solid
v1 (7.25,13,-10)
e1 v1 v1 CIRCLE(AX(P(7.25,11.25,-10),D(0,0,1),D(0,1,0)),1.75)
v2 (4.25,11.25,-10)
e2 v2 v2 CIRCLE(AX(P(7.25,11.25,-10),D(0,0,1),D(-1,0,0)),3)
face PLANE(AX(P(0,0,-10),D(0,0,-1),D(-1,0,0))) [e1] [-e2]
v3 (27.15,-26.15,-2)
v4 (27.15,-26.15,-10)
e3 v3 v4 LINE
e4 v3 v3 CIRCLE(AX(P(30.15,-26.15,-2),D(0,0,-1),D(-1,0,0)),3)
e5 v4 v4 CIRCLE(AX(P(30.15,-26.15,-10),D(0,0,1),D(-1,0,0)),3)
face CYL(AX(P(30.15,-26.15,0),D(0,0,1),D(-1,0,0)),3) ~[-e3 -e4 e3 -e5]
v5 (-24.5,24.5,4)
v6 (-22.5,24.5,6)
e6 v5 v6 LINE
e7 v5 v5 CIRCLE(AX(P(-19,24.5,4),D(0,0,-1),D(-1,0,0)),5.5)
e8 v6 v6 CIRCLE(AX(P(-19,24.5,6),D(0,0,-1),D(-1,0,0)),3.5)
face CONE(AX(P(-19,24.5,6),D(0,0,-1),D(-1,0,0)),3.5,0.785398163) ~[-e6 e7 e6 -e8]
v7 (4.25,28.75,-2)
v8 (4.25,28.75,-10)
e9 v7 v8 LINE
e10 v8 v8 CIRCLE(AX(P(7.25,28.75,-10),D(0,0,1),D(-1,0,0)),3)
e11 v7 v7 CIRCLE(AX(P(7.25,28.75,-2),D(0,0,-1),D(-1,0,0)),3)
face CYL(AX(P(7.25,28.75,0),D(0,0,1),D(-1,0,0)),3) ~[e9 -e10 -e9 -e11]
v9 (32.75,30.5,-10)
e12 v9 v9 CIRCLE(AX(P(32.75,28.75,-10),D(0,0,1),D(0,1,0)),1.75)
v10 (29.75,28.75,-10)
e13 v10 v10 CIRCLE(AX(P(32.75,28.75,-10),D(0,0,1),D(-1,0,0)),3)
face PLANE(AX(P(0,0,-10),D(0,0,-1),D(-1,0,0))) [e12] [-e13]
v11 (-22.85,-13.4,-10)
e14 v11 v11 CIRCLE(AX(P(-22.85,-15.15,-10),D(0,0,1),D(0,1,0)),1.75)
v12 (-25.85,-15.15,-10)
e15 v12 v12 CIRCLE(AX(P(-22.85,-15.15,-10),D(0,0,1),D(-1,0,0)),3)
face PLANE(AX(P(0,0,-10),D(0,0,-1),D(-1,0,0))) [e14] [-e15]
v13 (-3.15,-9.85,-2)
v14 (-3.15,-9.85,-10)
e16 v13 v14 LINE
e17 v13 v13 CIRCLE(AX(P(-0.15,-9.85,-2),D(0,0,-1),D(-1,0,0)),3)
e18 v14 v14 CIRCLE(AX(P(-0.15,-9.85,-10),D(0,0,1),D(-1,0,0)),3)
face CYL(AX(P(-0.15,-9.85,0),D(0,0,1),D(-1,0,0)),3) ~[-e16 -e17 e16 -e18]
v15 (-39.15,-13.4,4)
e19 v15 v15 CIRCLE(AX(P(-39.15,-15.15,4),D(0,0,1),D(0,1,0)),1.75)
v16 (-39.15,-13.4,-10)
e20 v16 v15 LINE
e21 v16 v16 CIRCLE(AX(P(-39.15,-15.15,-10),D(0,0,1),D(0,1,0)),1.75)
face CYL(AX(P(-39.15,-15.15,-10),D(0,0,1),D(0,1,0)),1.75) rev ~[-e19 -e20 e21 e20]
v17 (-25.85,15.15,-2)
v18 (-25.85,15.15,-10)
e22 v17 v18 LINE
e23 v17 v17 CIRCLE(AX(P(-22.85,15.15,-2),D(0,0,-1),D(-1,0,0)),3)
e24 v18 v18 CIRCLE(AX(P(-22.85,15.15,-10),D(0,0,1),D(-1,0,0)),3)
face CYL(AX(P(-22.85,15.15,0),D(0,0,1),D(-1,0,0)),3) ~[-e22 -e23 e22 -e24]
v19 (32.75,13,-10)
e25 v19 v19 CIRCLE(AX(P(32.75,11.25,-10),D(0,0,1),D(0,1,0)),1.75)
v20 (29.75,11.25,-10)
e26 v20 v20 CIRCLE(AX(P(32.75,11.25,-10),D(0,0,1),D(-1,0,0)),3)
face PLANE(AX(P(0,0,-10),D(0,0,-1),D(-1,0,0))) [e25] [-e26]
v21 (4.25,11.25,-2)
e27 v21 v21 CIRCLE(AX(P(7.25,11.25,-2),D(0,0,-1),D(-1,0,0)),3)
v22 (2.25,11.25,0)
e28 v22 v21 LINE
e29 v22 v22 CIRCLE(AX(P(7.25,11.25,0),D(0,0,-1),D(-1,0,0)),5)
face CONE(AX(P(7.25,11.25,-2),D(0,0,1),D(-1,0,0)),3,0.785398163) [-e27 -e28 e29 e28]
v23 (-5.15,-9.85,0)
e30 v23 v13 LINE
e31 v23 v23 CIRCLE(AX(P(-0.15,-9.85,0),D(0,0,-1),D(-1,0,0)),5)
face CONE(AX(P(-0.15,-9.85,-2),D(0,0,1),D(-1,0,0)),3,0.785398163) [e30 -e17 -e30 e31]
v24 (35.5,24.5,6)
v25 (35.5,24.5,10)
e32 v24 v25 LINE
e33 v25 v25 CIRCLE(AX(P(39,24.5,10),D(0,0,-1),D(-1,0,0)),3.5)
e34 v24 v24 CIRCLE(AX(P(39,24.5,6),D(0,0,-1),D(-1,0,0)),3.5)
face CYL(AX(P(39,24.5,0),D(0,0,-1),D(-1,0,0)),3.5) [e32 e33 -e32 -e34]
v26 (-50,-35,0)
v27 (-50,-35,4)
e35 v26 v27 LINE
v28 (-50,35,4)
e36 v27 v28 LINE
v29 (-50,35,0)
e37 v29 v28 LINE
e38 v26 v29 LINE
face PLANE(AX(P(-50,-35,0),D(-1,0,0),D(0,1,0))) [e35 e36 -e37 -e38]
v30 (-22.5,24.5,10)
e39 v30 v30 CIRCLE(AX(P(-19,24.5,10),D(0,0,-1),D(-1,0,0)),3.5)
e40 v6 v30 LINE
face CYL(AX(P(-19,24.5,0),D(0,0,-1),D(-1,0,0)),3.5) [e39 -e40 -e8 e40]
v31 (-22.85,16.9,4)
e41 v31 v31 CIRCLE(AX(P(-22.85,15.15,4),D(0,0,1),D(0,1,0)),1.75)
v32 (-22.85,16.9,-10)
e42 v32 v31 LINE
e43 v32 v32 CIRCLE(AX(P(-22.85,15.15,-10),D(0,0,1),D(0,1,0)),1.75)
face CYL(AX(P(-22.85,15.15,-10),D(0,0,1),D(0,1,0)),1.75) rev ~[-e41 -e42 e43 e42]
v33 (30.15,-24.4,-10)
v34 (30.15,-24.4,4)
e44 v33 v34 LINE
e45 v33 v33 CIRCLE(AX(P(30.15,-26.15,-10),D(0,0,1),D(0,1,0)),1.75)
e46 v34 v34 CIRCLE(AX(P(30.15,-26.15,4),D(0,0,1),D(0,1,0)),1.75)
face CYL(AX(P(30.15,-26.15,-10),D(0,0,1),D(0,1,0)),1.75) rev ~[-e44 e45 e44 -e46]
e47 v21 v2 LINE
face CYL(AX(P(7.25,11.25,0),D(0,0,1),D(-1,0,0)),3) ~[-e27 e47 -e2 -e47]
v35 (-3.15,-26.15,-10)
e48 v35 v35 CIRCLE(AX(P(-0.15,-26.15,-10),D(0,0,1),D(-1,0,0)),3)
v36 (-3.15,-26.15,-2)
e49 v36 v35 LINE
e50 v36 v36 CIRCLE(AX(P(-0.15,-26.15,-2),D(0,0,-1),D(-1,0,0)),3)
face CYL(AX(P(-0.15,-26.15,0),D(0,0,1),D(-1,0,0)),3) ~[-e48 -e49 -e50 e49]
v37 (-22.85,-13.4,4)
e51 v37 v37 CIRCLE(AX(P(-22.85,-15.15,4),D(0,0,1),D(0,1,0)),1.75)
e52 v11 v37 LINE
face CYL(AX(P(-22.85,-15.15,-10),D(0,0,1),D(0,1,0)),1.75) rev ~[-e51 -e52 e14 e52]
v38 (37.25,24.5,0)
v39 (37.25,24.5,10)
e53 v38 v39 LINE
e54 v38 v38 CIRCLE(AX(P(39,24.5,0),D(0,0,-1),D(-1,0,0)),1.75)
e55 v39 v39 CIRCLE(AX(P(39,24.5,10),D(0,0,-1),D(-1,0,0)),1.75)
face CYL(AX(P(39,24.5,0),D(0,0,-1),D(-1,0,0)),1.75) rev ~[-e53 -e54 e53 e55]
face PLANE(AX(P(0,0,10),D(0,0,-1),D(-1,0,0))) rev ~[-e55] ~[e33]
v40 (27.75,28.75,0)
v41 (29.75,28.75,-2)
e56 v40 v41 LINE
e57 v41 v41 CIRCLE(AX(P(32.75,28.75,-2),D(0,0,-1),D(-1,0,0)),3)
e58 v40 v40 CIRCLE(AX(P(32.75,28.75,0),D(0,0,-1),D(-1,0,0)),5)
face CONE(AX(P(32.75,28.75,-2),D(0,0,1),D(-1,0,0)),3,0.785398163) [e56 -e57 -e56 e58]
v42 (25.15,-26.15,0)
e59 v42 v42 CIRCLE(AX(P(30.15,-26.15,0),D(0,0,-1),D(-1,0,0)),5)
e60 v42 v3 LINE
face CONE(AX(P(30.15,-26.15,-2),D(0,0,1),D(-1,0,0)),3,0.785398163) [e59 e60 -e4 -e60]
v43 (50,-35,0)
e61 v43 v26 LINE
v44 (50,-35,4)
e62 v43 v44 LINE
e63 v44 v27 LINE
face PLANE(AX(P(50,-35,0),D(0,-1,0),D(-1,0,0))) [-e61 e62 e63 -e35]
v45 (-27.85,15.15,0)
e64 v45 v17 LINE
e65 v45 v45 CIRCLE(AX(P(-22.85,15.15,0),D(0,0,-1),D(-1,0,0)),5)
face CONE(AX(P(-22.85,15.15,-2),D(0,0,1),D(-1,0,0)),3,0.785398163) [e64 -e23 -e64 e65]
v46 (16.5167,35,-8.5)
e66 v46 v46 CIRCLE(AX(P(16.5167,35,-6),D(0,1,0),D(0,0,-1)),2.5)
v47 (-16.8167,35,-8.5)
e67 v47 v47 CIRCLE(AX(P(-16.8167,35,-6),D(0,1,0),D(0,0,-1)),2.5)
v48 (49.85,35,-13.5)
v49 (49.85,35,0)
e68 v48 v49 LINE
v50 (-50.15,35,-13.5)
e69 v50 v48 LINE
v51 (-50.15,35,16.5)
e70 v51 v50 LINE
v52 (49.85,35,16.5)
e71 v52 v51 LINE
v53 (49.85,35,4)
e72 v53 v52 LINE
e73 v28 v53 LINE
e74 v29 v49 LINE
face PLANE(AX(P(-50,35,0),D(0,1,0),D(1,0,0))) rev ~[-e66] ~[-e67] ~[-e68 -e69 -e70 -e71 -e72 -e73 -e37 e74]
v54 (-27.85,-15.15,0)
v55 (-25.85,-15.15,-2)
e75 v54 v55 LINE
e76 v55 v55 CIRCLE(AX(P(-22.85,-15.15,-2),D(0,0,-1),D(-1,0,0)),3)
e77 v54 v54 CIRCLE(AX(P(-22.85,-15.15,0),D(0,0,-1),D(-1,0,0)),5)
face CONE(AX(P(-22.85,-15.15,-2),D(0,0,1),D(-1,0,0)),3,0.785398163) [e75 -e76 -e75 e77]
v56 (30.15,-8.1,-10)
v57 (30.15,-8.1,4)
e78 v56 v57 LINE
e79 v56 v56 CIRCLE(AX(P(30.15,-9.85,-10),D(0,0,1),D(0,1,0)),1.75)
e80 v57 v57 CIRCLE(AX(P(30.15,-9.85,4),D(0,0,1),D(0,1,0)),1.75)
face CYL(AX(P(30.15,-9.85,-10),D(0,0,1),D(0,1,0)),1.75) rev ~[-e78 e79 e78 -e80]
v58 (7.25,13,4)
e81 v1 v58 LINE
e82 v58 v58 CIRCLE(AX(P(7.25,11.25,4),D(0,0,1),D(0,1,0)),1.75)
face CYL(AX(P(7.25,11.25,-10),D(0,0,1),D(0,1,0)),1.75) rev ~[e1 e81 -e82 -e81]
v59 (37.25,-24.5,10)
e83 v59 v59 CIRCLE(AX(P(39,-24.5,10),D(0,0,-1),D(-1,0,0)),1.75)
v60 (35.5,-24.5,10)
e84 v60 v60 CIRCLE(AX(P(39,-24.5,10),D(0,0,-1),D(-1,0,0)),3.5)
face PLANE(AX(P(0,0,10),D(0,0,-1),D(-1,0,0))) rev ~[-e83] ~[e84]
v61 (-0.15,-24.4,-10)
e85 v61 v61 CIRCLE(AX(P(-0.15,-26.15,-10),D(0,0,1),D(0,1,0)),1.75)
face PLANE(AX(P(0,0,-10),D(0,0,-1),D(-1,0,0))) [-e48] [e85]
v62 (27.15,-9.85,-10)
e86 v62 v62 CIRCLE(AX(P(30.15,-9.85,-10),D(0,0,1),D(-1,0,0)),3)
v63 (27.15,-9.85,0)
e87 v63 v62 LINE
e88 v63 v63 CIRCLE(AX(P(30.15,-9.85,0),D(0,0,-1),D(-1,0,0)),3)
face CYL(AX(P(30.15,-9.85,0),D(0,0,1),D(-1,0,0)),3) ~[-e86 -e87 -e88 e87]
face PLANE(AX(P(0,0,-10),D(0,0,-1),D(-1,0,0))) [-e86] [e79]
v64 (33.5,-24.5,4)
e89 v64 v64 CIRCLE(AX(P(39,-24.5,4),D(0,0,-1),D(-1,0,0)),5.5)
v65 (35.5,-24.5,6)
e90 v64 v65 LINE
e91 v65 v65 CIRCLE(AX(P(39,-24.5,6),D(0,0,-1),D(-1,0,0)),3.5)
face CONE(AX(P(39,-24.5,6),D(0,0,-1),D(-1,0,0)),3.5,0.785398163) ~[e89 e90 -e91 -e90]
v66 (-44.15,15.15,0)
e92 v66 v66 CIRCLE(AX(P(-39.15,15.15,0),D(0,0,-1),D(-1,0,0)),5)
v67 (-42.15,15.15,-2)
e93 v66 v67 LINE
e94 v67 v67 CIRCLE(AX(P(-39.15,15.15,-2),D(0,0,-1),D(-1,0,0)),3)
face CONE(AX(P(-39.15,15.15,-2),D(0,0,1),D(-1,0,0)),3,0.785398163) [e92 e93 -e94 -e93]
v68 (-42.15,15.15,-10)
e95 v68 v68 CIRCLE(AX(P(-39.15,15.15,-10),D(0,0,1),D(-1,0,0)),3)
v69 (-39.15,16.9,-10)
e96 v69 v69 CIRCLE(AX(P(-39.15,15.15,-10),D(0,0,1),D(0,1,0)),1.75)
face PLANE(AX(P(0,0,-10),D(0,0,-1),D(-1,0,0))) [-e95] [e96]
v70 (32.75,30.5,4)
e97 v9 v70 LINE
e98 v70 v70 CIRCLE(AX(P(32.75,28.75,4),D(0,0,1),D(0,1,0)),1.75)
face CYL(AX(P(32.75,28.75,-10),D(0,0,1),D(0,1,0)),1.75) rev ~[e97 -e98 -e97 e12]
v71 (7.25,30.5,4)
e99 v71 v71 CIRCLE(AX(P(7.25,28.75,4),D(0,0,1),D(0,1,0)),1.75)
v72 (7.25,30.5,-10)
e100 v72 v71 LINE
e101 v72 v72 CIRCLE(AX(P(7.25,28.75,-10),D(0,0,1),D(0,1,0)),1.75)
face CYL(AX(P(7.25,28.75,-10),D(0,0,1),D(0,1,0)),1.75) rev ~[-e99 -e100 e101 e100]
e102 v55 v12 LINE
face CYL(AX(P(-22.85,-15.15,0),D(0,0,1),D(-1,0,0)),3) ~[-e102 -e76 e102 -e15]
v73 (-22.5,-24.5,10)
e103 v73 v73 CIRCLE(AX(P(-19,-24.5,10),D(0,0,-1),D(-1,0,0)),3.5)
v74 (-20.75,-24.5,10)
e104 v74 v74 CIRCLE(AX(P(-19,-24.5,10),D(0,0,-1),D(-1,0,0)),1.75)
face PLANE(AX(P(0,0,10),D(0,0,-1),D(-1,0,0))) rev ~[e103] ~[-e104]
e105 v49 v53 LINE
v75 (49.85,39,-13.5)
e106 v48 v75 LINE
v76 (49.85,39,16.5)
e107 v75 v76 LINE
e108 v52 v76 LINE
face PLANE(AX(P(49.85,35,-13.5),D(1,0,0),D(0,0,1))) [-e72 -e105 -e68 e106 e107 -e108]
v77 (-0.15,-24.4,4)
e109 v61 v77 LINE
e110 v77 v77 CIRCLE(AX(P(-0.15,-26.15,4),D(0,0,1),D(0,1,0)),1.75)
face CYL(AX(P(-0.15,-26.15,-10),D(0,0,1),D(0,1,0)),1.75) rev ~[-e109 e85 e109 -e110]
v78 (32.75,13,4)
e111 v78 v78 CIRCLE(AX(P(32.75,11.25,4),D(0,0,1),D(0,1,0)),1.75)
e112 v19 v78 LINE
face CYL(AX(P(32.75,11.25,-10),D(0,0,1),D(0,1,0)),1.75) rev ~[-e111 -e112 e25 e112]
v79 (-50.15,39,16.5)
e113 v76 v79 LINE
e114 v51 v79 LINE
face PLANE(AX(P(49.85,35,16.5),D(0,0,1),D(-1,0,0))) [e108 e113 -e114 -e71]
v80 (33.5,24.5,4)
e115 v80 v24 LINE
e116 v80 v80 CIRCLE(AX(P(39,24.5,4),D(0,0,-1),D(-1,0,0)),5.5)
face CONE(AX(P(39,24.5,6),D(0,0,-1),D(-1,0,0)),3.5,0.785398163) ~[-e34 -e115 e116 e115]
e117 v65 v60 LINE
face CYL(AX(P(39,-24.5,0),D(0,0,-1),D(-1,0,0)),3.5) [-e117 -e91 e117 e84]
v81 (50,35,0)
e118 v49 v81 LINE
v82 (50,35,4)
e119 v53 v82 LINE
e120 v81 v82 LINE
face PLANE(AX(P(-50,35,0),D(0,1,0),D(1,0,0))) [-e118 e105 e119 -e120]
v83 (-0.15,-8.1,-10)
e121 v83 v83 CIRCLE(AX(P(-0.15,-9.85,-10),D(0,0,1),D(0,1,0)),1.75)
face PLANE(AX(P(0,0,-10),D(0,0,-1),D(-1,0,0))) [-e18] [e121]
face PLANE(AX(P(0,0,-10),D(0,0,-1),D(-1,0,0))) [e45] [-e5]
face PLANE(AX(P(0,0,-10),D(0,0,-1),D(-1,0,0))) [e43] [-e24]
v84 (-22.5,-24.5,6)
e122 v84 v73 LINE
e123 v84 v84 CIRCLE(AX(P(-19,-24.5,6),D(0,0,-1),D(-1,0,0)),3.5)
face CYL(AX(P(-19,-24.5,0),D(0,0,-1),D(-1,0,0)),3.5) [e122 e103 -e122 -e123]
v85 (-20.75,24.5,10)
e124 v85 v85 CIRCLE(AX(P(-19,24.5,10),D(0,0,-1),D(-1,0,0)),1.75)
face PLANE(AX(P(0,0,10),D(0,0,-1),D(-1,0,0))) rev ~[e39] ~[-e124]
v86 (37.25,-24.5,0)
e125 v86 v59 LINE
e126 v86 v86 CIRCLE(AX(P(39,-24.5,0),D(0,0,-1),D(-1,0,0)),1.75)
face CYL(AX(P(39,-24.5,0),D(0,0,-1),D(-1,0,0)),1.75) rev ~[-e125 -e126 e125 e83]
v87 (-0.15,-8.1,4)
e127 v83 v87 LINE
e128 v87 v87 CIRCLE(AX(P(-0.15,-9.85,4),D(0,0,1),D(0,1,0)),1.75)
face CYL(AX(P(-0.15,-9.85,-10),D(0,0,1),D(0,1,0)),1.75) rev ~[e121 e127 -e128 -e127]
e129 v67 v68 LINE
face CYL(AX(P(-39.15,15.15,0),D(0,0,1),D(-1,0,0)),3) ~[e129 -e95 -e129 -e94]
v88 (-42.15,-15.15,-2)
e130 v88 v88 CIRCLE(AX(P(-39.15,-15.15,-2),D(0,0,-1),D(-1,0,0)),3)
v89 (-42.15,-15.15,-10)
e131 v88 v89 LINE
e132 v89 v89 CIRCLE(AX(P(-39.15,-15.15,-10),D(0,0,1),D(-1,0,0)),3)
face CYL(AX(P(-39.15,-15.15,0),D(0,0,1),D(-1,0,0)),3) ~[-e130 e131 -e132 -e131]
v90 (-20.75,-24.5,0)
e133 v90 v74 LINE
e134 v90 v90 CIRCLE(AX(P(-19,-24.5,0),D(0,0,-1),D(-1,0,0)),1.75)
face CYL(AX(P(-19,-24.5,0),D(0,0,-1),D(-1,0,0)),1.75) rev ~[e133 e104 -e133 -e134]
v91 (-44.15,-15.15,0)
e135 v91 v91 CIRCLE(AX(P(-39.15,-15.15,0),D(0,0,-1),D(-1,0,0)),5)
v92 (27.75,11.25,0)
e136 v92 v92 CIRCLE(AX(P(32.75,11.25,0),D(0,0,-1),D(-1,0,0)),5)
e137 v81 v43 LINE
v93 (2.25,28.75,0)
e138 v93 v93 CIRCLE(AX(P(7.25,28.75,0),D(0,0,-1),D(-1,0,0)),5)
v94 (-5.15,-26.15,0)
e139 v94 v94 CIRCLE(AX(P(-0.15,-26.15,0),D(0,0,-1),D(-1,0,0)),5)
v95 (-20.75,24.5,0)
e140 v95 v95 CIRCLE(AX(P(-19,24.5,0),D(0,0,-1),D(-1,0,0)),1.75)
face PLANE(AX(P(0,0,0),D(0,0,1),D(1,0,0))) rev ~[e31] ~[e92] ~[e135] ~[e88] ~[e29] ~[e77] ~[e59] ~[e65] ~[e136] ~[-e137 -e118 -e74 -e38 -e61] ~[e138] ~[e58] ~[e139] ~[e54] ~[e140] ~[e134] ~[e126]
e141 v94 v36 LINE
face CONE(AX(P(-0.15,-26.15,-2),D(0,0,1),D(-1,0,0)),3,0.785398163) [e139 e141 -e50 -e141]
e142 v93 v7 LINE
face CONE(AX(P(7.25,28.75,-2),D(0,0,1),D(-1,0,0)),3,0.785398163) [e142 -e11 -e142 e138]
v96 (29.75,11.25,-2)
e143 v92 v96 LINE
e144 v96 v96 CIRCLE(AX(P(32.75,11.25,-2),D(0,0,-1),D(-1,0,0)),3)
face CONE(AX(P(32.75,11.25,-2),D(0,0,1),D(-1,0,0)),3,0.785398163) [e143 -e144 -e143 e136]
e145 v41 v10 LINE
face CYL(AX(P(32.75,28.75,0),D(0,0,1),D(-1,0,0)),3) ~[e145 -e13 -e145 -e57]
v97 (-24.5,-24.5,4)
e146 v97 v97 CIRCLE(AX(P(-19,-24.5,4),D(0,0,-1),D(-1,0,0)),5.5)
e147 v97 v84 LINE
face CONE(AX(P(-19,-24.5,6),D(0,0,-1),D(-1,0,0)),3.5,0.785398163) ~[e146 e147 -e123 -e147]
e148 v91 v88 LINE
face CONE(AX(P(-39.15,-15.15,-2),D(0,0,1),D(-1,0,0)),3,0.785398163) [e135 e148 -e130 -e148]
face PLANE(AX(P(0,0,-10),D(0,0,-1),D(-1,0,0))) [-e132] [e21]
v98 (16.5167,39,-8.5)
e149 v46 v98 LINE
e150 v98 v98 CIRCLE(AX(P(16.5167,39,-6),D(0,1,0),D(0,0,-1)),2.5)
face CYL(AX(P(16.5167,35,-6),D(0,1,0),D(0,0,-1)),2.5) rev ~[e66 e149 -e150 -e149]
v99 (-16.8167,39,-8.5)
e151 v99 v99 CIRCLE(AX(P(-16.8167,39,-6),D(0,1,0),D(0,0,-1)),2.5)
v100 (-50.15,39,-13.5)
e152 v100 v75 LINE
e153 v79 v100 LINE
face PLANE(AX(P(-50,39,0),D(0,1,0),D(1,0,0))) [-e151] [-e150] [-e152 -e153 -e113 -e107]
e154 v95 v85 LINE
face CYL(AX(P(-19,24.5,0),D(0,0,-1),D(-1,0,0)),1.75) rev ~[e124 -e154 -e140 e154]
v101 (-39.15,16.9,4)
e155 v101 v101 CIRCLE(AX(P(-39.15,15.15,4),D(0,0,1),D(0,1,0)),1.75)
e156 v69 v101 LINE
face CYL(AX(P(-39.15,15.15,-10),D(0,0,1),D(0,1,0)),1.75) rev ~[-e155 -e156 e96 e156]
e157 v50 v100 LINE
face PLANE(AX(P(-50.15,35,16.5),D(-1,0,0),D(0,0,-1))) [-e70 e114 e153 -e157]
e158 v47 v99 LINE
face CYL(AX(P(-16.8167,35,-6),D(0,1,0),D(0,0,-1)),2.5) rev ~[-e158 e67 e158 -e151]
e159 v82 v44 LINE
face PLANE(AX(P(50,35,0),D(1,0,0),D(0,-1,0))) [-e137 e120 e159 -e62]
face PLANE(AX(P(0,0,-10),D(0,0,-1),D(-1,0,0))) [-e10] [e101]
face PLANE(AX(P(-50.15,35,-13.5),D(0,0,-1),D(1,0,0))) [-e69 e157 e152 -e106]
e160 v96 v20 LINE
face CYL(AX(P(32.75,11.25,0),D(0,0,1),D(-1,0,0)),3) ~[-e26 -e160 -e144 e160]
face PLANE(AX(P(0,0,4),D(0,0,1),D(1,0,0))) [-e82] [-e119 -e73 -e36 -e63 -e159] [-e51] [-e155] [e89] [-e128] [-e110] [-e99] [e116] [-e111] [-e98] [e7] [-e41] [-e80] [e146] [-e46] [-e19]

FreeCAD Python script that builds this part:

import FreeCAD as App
import Part
import Sketcher
Q = App.Units.Quantity


def edges_at(feature, points):
    """Names of the edges that pass closest to the given points."""
    edges = feature.Shape.Edges
    near = lambda p: min(range(len(edges)), key=lambda i: edges[i].distToShape(Part.Vertex(*p))[0])
    return sorted({f"Edge{near(p) + 1}" for p in points})

doc = App.newDocument("Part")
body = doc.addObject("PartDesign::Body", "Body")

sketch1 = body.newObject("Sketcher::SketchObject", "Sketch")
sketch1.AttachmentSupport = (doc.getObject("XY_Plane"), [""])
sketch1.MapMode = "FlatFace"
sketch1.addGeometry(Part.LineSegment(App.Vector(50, 35, 0), App.Vector(-50, 35, 0)), False)
sketch1.addGeometry(Part.LineSegment(App.Vector(-50, 35, 0), App.Vector(-50, -35, 0)), False)
sketch1.addGeometry(Part.LineSegment(App.Vector(-50, -35, 0), App.Vector(50, -35, 0)), False)
sketch1.addGeometry(Part.LineSegment(App.Vector(50, -35, 0), App.Vector(50, 35, 0)), False)
sketch1.addGeometry(Part.Circle(App.Vector(39, 24.5, 0), App.Vector(0, 0, 1), 3.5), False)
sketch1.addGeometry(Part.Circle(App.Vector(39, -24.5, 0), App.Vector(0, 0, 1), 3.5), False)
sketch1.addGeometry(Part.Circle(App.Vector(-19, -24.5, 0), App.Vector(0, 0, 1), 3.5), False)
sketch1.addGeometry(Part.Circle(App.Vector(-19, 24.5, 0), App.Vector(0, 0, 1), 3.5), False)
sketch1.addConstraint(Sketcher.Constraint("Coincident", 0, 2, 1, 1))
sketch1.addConstraint(Sketcher.Constraint("Coincident", 1, 2, 2, 1))
sketch1.addConstraint(Sketcher.Constraint("Coincident", 2, 2, 3, 1))
sketch1.addConstraint(Sketcher.Constraint("Coincident", 3, 2, 0, 1))
sketch1.addConstraint(Sketcher.Constraint("Horizontal", 0))
sketch1.addConstraint(Sketcher.Constraint("Vertical", 1))
sketch1.addConstraint(Sketcher.Constraint("Horizontal", 2))
sketch1.addConstraint(Sketcher.Constraint("Vertical", 3))
sketch1.addConstraint(Sketcher.Constraint("Equal", 4, 5))
sketch1.addConstraint(Sketcher.Constraint("Equal", 5, 6))
sketch1.addConstraint(Sketcher.Constraint("Equal", 6, 7))
sketch1.addConstraint(Sketcher.Constraint("Symmetric", 0, 2, 2, 2, -1, 1))
sketch1.addConstraint(Sketcher.Constraint("Symmetric", 4, 3, 5, 3, -1))
sketch1.addConstraint(Sketcher.Constraint("Symmetric", 6, 3, 7, 3, -1))
sketch1.addConstraint(Sketcher.Constraint("Horizontal", 5, 3, 6, 3))
sketch1.addConstraint(Sketcher.Constraint("Diameter", 4, Q("7 mm")))
sketch1.addConstraint(Sketcher.Constraint("DistanceX", 0, 2, 0, 1, Q("100 mm")))
sketch1.addConstraint(Sketcher.Constraint("DistanceY", 1, 2, 1, 1, Q("70 mm")))
sketch1.addConstraint(Sketcher.Constraint("DistanceX", 6, 3, 5, 3, Q("58 mm")))
sketch1.addConstraint(Sketcher.Constraint("DistanceX", -1, 1, 4, 3, Q("39 mm")))
sketch1.addConstraint(Sketcher.Constraint("DistanceY", 5, 3, 4, 3, Q("49 mm")))
pad1 = body.newObject("PartDesign::Pad", "Pad")
pad1.Profile = sketch1
pad1.Length = 4

sketch2 = body.newObject("Sketcher::SketchObject", "Sketch001")
sketch2.AttachmentSupport = (doc.getObject("XY_Plane"), [""])
sketch2.MapMode = "FlatFace"
sketch2.addGeometry(Part.Circle(App.Vector(-19, 24.5, 0), App.Vector(0, 0, 1), 3.5), False)
sketch2.addGeometry(Part.Circle(App.Vector(-19, 24.5, 0), App.Vector(0, 0, 1), 1.75), False)
sketch2.addGeometry(Part.Circle(App.Vector(39, 24.5, 0), App.Vector(0, 0, 1), 3.5), False)
sketch2.addGeometry(Part.Circle(App.Vector(39, 24.5, 0), App.Vector(0, 0, 1), 1.75), False)
sketch2.addGeometry(Part.Circle(App.Vector(39, -24.5, 0), App.Vector(0, 0, 1), 3.5), False)
sketch2.addGeometry(Part.Circle(App.Vector(39, -24.5, 0), App.Vector(0, 0, 1), 1.75), False)
sketch2.addGeometry(Part.Circle(App.Vector(-19, -24.5, 0), App.Vector(0, 0, 1), 3.5), False)
sketch2.addGeometry(Part.Circle(App.Vector(-19, -24.5, 0), App.Vector(0, 0, 1), 1.75), False)
sketch2.addConstraint(Sketcher.Constraint("Coincident", 1, 3, 0, 3))
sketch2.addConstraint(Sketcher.Constraint("Coincident", 3, 3, 2, 3))
sketch2.addConstraint(Sketcher.Constraint("Coincident", 5, 3, 4, 3))
sketch2.addConstraint(Sketcher.Constraint("Coincident", 7, 3, 6, 3))
sketch2.addConstraint(Sketcher.Constraint("Equal", 0, 2))
sketch2.addConstraint(Sketcher.Constraint("Equal", 1, 3))
sketch2.addConstraint(Sketcher.Constraint("Equal", 2, 4))
sketch2.addConstraint(Sketcher.Constraint("Equal", 3, 5))
sketch2.addConstraint(Sketcher.Constraint("Equal", 4, 6))
sketch2.addConstraint(Sketcher.Constraint("Equal", 5, 7))
sketch2.addConstraint(Sketcher.Constraint("Symmetric", 2, 3, 4, 3, -1))
sketch2.addConstraint(Sketcher.Constraint("Symmetric", 0, 3, 6, 3, -1))
sketch2.addConstraint(Sketcher.Constraint("Horizontal", 1, 3, 2, 3))
sketch2.addConstraint(Sketcher.Constraint("Diameter", 0, Q("7 mm")))
sketch2.addConstraint(Sketcher.Constraint("Diameter", 1, Q("3.5 mm")))
sketch2.addConstraint(Sketcher.Constraint("DistanceX", 0, 3, -1, 1, Q("19 mm")))
sketch2.addConstraint(Sketcher.Constraint("DistanceX", -1, 1, 2, 3, Q("39 mm")))
sketch2.addConstraint(Sketcher.Constraint("DistanceY", 4, 3, 2, 3, Q("49 mm")))
pad2 = body.newObject("PartDesign::Pad", "Pad001")
pad2.Profile = sketch2
pad2.Length = 10

sketch3 = body.newObject("Sketcher::SketchObject", "Sketch002")
sketch3.AttachmentSupport = (doc.getObject("XY_Plane"), [""])
sketch3.MapMode = "FlatFace"
sketch3.addGeometry(Part.Circle(App.Vector(32.75, 28.75, 0), App.Vector(0, 0, 1), 3), False)
sketch3.addGeometry(Part.Circle(App.Vector(32.75, 28.75, 0), App.Vector(0, 0, 1), 1.75), False)
sketch3.addGeometry(Part.Circle(App.Vector(32.75, 11.25, 0), App.Vector(0, 0, 1), 3), False)
sketch3.addGeometry(Part.Circle(App.Vector(32.75, 11.25, 0), App.Vector(0, 0, 1), 1.75), False)
sketch3.addGeometry(Part.Circle(App.Vector(7.25, 28.75, 0), App.Vector(0, 0, 1), 3), False)
sketch3.addGeometry(Part.Circle(App.Vector(7.25, 28.75, 0), App.Vector(0, 0, 1), 1.75), False)
sketch3.addGeometry(Part.Circle(App.Vector(7.25, 11.25, 0), App.Vector(0, 0, 1), 3), False)
sketch3.addGeometry(Part.Circle(App.Vector(7.25, 11.25, 0), App.Vector(0, 0, 1), 1.75), False)
sketch3.addConstraint(Sketcher.Constraint("Coincident", 1, 3, 0, 3))
sketch3.addConstraint(Sketcher.Constraint("Coincident", 3, 3, 2, 3))
sketch3.addConstraint(Sketcher.Constraint("Coincident", 5, 3, 4, 3))
sketch3.addConstraint(Sketcher.Constraint("Coincident", 7, 3, 6, 3))
sketch3.addConstraint(Sketcher.Constraint("Equal", 0, 2))
sketch3.addConstraint(Sketcher.Constraint("Equal", 1, 3))
sketch3.addConstraint(Sketcher.Constraint("Equal", 2, 4))
sketch3.addConstraint(Sketcher.Constraint("Equal", 3, 5))
sketch3.addConstraint(Sketcher.Constraint("Equal", 4, 6))
sketch3.addConstraint(Sketcher.Constraint("Equal", 5, 7))
sketch3.addConstraint(Sketcher.Constraint("Horizontal", 1, 3, 4, 3))
sketch3.addConstraint(Sketcher.Constraint("Horizontal", 3, 3, 6, 3))
sketch3.addConstraint(Sketcher.Constraint("Vertical", 1, 3, 2, 3))
sketch3.addConstraint(Sketcher.Constraint("Vertical", 5, 3, 6, 3))
sketch3.addConstraint(Sketcher.Constraint("Diameter", 0, Q("6 mm")))
sketch3.addConstraint(Sketcher.Constraint("Diameter", 1, Q("3.5 mm")))
sketch3.addConstraint(Sketcher.Constraint("DistanceY", 2, 3, 0, 3, Q("17.5 mm")))
sketch3.addConstraint(Sketcher.Constraint("DistanceX", 4, 3, 0, 3, Q("25.5 mm")))
sketch3.addConstraint(Sketcher.Constraint("DistanceX", -1, 1, 0, 3, Q("32.75 mm")))
sketch3.addConstraint(Sketcher.Constraint("DistanceY", -1, 1, 0, 3, Q("28.75 mm")))
pad3 = body.newObject("PartDesign::Pad", "Pad002")
pad3.Profile = sketch3
pad3.Length = 10
pad3.Reversed = True

sketch4 = body.newObject("Sketcher::SketchObject", "Sketch003")
sketch4.AttachmentSupport = (doc.getObject("XY_Plane"), [""])
sketch4.MapMode = "FlatFace"
sketch4.addGeometry(Part.Circle(App.Vector(30.15, -9.85, 0), App.Vector(0, 0, 1), 3), False)
sketch4.addGeometry(Part.Circle(App.Vector(30.15, -26.15, 0), App.Vector(0, 0, 1), 3), False)
sketch4.addGeometry(Part.Circle(App.Vector(-0.15, -9.85, 0), App.Vector(0, 0, 1), 3), False)
sketch4.addGeometry(Part.Circle(App.Vector(-0.15, -26.15, 0), App.Vector(0, 0, 1), 3), False)
sketch4.addGeometry(Part.Circle(App.Vector(-22.85, -15.15, 0), App.Vector(0, 0, 1), 3), False)
sketch4.addGeometry(Part.Circle(App.Vector(-39.15, -15.15, 0), App.Vector(0, 0, 1), 3), False)
sketch4.addGeometry(Part.Circle(App.Vector(-22.85, 15.15, 0), App.Vector(0, 0, 1), 3), False)
sketch4.addGeometry(Part.Circle(App.Vector(-39.15, 15.15, 0), App.Vector(0, 0, 1), 3), False)
sketch4.addConstraint(Sketcher.Constraint("Equal", 0, 1))
sketch4.addConstraint(Sketcher.Constraint("Equal", 1, 2))
sketch4.addConstraint(Sketcher.Constraint("Equal", 2, 3))
sketch4.addConstraint(Sketcher.Constraint("Equal", 3, 4))
sketch4.addConstraint(Sketcher.Constraint("Equal", 4, 5))
sketch4.addConstraint(Sketcher.Constraint("Equal", 5, 6))
sketch4.addConstraint(Sketcher.Constraint("Equal", 6, 7))
sketch4.addConstraint(Sketcher.Constraint("Symmetric", 4, 3, 6, 3, -1))
sketch4.addConstraint(Sketcher.Constraint("Symmetric", 5, 3, 7, 3, -1))
sketch4.addConstraint(Sketcher.Constraint("Horizontal", 0, 3, 2, 3))
sketch4.addConstraint(Sketcher.Constraint("Horizontal", 1, 3, 3, 3))
sketch4.addConstraint(Sketcher.Constraint("Horizontal", 4, 3, 5, 3))
sketch4.addConstraint(Sketcher.Constraint("Vertical", 0, 3, 1, 3))
sketch4.addConstraint(Sketcher.Constraint("Vertical", 2, 3, 3, 3))
sketch4.addConstraint(Sketcher.Constraint("Diameter", 0, Q("6 mm")))
sketch4.addConstraint(Sketcher.Constraint("DistanceY", 1, 3, 0, 3, Q("16.3 mm")))
sketch4.addConstraint(Sketcher.Constraint("DistanceX", 2, 3, 0, 3, Q("30.3 mm")))
sketch4.addConstraint(Sketcher.Constraint("DistanceX", 5, 3, 4, 3, Q("16.3 mm")))
sketch4.addConstraint(Sketcher.Constraint("DistanceY", 4, 3, 6, 3, Q("30.3 mm")))
sketch4.addConstraint(Sketcher.Constraint("DistanceY", 3, 3, 4, 3, Q("11 mm")))
sketch4.addConstraint(Sketcher.Constraint("DistanceX", 4, 3, 0, 3, Q("53 mm")))
sketch4.addConstraint(Sketcher.Constraint("DistanceX", -1, 1, 0, 3, Q("30.15 mm")))
pad4 = body.newObject("PartDesign::Pad", "Pad003")
pad4.Profile = sketch4
pad4.Length = 10
pad4.Reversed = True

sketch5 = body.newObject("Sketcher::SketchObject", "Sketch004")
sketch5.AttachmentSupport = (doc.getObject("XY_Plane"), [""])
sketch5.MapMode = "FlatFace"
sketch5.AttachmentOffset = App.Placement(App.Vector(0, 0, -10), App.Rotation())
sketch5.addGeometry(Part.Circle(App.Vector(32.75, 28.75, 0), App.Vector(0, 0, 1), 1.75), False)
sketch5.addGeometry(Part.Circle(App.Vector(7.25, 28.75, 0), App.Vector(0, 0, 1), 1.75), False)
sketch5.addGeometry(Part.Circle(App.Vector(7.25, 11.25, 0), App.Vector(0, 0, 1), 1.75), False)
sketch5.addGeometry(Part.Circle(App.Vector(32.75, 11.25, 0), App.Vector(0, 0, 1), 1.75), False)
sketch5.addGeometry(Part.Circle(App.Vector(30.15, -9.85, 0), App.Vector(0, 0, 1), 1.75), False)
sketch5.addGeometry(Part.Circle(App.Vector(30.15, -26.15, 0), App.Vector(0, 0, 1), 1.75), False)
sketch5.addGeometry(Part.Circle(App.Vector(-0.15, -26.15, 0), App.Vector(0, 0, 1), 1.75), False)
sketch5.addGeometry(Part.Circle(App.Vector(-0.15, -9.85, 0), App.Vector(0, 0, 1), 1.75), False)
sketch5.addGeometry(Part.Circle(App.Vector(-22.85, -15.15, 0), App.Vector(0, 0, 1), 1.75), False)
sketch5.addGeometry(Part.Circle(App.Vector(-22.85, 15.15, 0), App.Vector(0, 0, 1), 1.75), False)
sketch5.addGeometry(Part.Circle(App.Vector(-39.15, 15.15, 0), App.Vector(0, 0, 1), 1.75), False)
sketch5.addGeometry(Part.Circle(App.Vector(-39.15, -15.15, 0), App.Vector(0, 0, 1), 1.75), False)
sketch5.addGeometry(Part.Circle(App.Vector(32.75, 28.75, 0), App.Vector(0, 0, 1), 1.75), False)
sketch5.addGeometry(Part.Circle(App.Vector(7.25, 28.75, 0), App.Vector(0, 0, 1), 1.75), False)
sketch5.addGeometry(Part.Circle(App.Vector(7.25, 11.25, 0), App.Vector(0, 0, 1), 1.75), False)
sketch5.addGeometry(Part.Circle(App.Vector(32.75, 11.25, 0), App.Vector(0, 0, 1), 1.75), False)
sketch5.addGeometry(Part.Circle(App.Vector(30.15, -9.85, 0), App.Vector(0, 0, 1), 1.75), False)
sketch5.addGeometry(Part.Circle(App.Vector(30.15, -26.15, 0), App.Vector(0, 0, 1), 1.75), False)
sketch5.addGeometry(Part.Circle(App.Vector(-0.15, -9.85, 0), App.Vector(0, 0, 1), 1.75), False)
sketch5.addGeometry(Part.Circle(App.Vector(-0.15, -26.15, 0), App.Vector(0, 0, 1), 1.75), False)
sketch5.addGeometry(Part.Circle(App.Vector(-22.85, -15.15, 0), App.Vector(0, 0, 1), 1.75), False)
sketch5.addGeometry(Part.Circle(App.Vector(-39.15, -15.15, 0), App.Vector(0, 0, 1), 1.75), False)
sketch5.addGeometry(Part.Circle(App.Vector(-39.15, 15.15, 0), App.Vector(0, 0, 1), 1.75), False)
sketch5.addGeometry(Part.Circle(App.Vector(-22.85, 15.15, 0), App.Vector(0, 0, 1), 1.75), False)
sketch5.addConstraint(Sketcher.Constraint("Coincident", 12, 3, 0, 3))
sketch5.addConstraint(Sketcher.Constraint("Coincident", 13, 3, 1, 3))
sketch5.addConstraint(Sketcher.Constraint("Coincident", 14, 3, 2, 3))
sketch5.addConstraint(Sketcher.Constraint("Coincident", 15, 3, 3, 3))
sketch5.addConstraint(Sketcher.Constraint("Coincident", 16, 3, 4, 3))
sketch5.addConstraint(Sketcher.Constraint("Coincident", 17, 3, 5, 3))
sketch5.addConstraint(Sketcher.Constraint("Coincident", 18, 3, 7, 3))
sketch5.addConstraint(Sketcher.Constraint("Coincident", 19, 3, 6, 3))
sketch5.addConstraint(Sketcher.Constraint("Coincident", 20, 3, 8, 3))
sketch5.addConstraint(Sketcher.Constraint("Coincident", 21, 3, 11, 3))
sketch5.addConstraint(Sketcher.Constraint("Coincident", 22, 3, 10, 3))
sketch5.addConstraint(Sketcher.Constraint("Coincident", 23, 3, 9, 3))
sketch5.addConstraint(Sketcher.Constraint("Equal", 0, 1))
sketch5.addConstraint(Sketcher.Constraint("Equal", 1, 2))
sketch5.addConstraint(Sketcher.Constraint("Equal", 2, 3))
sketch5.addConstraint(Sketcher.Constraint("Equal", 3, 4))
sketch5.addConstraint(Sketcher.Constraint("Equal", 4, 5))
sketch5.addConstraint(Sketcher.Constraint("Equal", 5, 6))
sketch5.addConstraint(Sketcher.Constraint("Equal", 6, 7))
sketch5.addConstraint(Sketcher.Constraint("Equal", 7, 8))
sketch5.addConstraint(Sketcher.Constraint("Equal", 8, 9))
sketch5.addConstraint(Sketcher.Constraint("Equal", 9, 10))
sketch5.addConstraint(Sketcher.Constraint("Equal", 10, 11))
sketch5.addConstraint(Sketcher.Constraint("Equal", 11, 12))
sketch5.addConstraint(Sketcher.Constraint("Equal", 12, 13))
sketch5.addConstraint(Sketcher.Constraint("Equal", 13, 14))
sketch5.addConstraint(Sketcher.Constraint("Equal", 14, 15))
sketch5.addConstraint(Sketcher.Constraint("Equal", 15, 16))
sketch5.addConstraint(Sketcher.Constraint("Equal", 16, 17))
sketch5.addConstraint(Sketcher.Constraint("Equal", 17, 18))
sketch5.addConstraint(Sketcher.Constraint("Equal", 18, 19))
sketch5.addConstraint(Sketcher.Constraint("Equal", 19, 20))
sketch5.addConstraint(Sketcher.Constraint("Equal", 20, 21))
sketch5.addConstraint(Sketcher.Constraint("Equal", 21, 22))
sketch5.addConstraint(Sketcher.Constraint("Equal", 22, 23))
sketch5.addConstraint(Sketcher.Constraint("Symmetric", 8, 3, 9, 3, -1))
sketch5.addConstraint(Sketcher.Constraint("Symmetric", 10, 3, 11, 3, -1))
sketch5.addConstraint(Sketcher.Constraint("Horizontal", 0, 3, 1, 3))
sketch5.addConstraint(Sketcher.Constraint("Horizontal", 2, 3, 3, 3))
sketch5.addConstraint(Sketcher.Constraint("Horizontal", 5, 3, 6, 3))
sketch5.addConstraint(Sketcher.Constraint("Horizontal", 4, 3, 7, 3))
sketch5.addConstraint(Sketcher.Constraint("Horizontal", 9, 3, 10, 3))
sketch5.addConstraint(Sketcher.Constraint("Vertical", 1, 3, 2, 3))
sketch5.addConstraint(Sketcher.Constraint("Vertical", 0, 3, 3, 3))
sketch5.addConstraint(Sketcher.Constraint("Vertical", 4, 3, 5, 3))
sketch5.addConstraint(Sketcher.Constraint("Vertical", 6, 3, 7, 3))
sketch5.addConstraint(Sketcher.Constraint("Diameter", 0, Q("3.5 mm")))
sketch5.addConstraint(Sketcher.Constraint("DistanceY", 6, 3, 8, 3, Q("11 mm")))
sketch5.addConstraint(Sketcher.Constraint("DistanceX", 8, 3, 4, 3, Q("53 mm")))
sketch5.addConstraint(Sketcher.Constraint("DistanceY", 7, 3, 9, 3, Q("25 mm")))
sketch5.addConstraint(Sketcher.Constraint("DistanceX", 10, 3, 7, 3, Q("39 mm")))
sketch5.addConstraint(Sketcher.Constraint("DistanceX", 1, 3, 0, 3, Q("25.5 mm")))
sketch5.addConstraint(Sketcher.Constraint("DistanceY", 2, 3, 1, 3, Q("17.5 mm")))
sketch5.addConstraint(Sketcher.Constraint("DistanceX", 4, 3, 3, 3, Q("2.6 mm")))
sketch5.addConstraint(Sketcher.Constraint("DistanceY", 4, 3, 3, 3, Q("21.1 mm")))
sketch5.addConstraint(Sketcher.Constraint("DistanceY", 5, 3, 4, 3, Q("16.3 mm")))
sketch5.addConstraint(Sketcher.Constraint("DistanceX", 6, 3, 5, 3, Q("30.3 mm")))
sketch5.addConstraint(Sketcher.Constraint("DistanceX", -1, 1, 0, 3, Q("32.75 mm")))
doc.recompute()
hole = body.newObject("PartDesign::Hole", "Hole")
hole.Profile = sketch5
hole.ThreadType = "None"
hole.Diameter = 3.5
hole.DepthType = "ThroughAll"
hole.Reversed = True
doc.recompute()

chamfer = body.newObject("PartDesign::Chamfer", "Chamfer")
chamfer.Base = (hole, edges_at(hole, [
    (35.75, 28.75, 0),
    (35.75, 11.25, 0),
    (10.25, 28.75, 0),
    (10.25, 11.25, 0),
    (-19.85, 15.15, 0),
    (2.85, -9.85, 0),
    (-19.85, -15.15, 0),
    (2.85, -26.15, 0),
    (33.15, -26.15, 0),
    (-36.15, 15.15, 0),
    (-36.15, -15.15, 0),
    (-15.5, -24.5, 4),
    (-15.5, 24.5, 4),
    (42.5, 24.5, 4),
    (42.5, -24.5, 4),
]))
chamfer.Size = 2

sketch6 = body.newObject("Sketcher::SketchObject", "Sketch005")
sketch6.AttachmentSupport = (doc.getObject("XZ_Plane"), [""])
sketch6.MapMode = "FlatFace"
sketch6.AttachmentOffset = App.Placement(App.Vector(0, 0, -35), App.Rotation())
sketch6.addGeometry(Part.LineSegment(App.Vector(49.85, -13.5, 0), App.Vector(-50.15, -13.5, 0)), False)
sketch6.addGeometry(Part.LineSegment(App.Vector(-50.15, -13.5, 0), App.Vector(-50.15, 16.5, 0)), False)
sketch6.addGeometry(Part.LineSegment(App.Vector(-50.15, 16.5, 0), App.Vector(49.85, 16.5, 0)), False)
sketch6.addGeometry(Part.LineSegment(App.Vector(49.85, 16.5, 0), App.Vector(49.85, -13.5, 0)), False)
sketch6.addConstraint(Sketcher.Constraint("Coincident", 0, 2, 1, 1))
sketch6.addConstraint(Sketcher.Constraint("Coincident", 1, 2, 2, 1))
sketch6.addConstraint(Sketcher.Constraint("Coincident", 2, 2, 3, 1))
sketch6.addConstraint(Sketcher.Constraint("Coincident", 3, 2, 0, 1))
sketch6.addConstraint(Sketcher.Constraint("Horizontal", 0))
sketch6.addConstraint(Sketcher.Constraint("Vertical", 1))
sketch6.addConstraint(Sketcher.Constraint("Horizontal", 2))
sketch6.addConstraint(Sketcher.Constraint("Vertical", 3))
sketch6.addConstraint(Sketcher.Constraint("DistanceX", 0, 2, 0, 1, Q("100 mm")))
sketch6.addConstraint(Sketcher.Constraint("DistanceY", 1, 1, 1, 2, Q("30 mm")))
sketch6.addConstraint(Sketcher.Constraint("DistanceY", 0, 2, -1, 1, Q("13.5 mm")))
sketch6.addConstraint(Sketcher.Constraint("DistanceX", 0, 2, -1, 1, Q("50.15 mm")))
pad5 = body.newObject("PartDesign::Pad", "Pad004")
pad5.Profile = sketch6
pad5.Length = 4
pad5.Reversed = True

sketch7 = body.newObject("Sketcher::SketchObject", "Sketch006")
sketch7.AttachmentSupport = (doc.getObject("XZ_Plane"), [""])
sketch7.MapMode = "FlatFace"
sketch7.AttachmentOffset = App.Placement(App.Vector(0, 0, -35), App.Rotation())
sketch7.addGeometry(Part.Circle(App.Vector(16.5167, -6, 0), App.Vector(0, 0, 1), 2.5), False)
sketch7.addGeometry(Part.Circle(App.Vector(-16.8167, -6, 0), App.Vector(0, 0, 1), 2.5), False)
sketch7.addConstraint(Sketcher.Constraint("Equal", 0, 1))
sketch7.addConstraint(Sketcher.Constraint("Horizontal", 0, 3, 1, 3))
sketch7.addConstraint(Sketcher.Constraint("Diameter", 0, Q("5 mm")))
sketch7.addConstraint(Sketcher.Constraint("DistanceY", 0, 3, -1, 1, Q("6 mm")))
sketch7.addConstraint(Sketcher.Constraint("DistanceX", -1, 1, 0, 3, Q("16.5167 mm")))
sketch7.addConstraint(Sketcher.Constraint("DistanceX", 1, 3, -1, 1, Q("16.8167 mm")))
doc.recompute()
hole2 = body.newObject("PartDesign::Hole", "Hole001")
hole2.Profile = sketch7
hole2.ThreadType = "None"
hole2.Diameter = 5
hole2.DepthType = "ThroughAll"

doc.recompute()
